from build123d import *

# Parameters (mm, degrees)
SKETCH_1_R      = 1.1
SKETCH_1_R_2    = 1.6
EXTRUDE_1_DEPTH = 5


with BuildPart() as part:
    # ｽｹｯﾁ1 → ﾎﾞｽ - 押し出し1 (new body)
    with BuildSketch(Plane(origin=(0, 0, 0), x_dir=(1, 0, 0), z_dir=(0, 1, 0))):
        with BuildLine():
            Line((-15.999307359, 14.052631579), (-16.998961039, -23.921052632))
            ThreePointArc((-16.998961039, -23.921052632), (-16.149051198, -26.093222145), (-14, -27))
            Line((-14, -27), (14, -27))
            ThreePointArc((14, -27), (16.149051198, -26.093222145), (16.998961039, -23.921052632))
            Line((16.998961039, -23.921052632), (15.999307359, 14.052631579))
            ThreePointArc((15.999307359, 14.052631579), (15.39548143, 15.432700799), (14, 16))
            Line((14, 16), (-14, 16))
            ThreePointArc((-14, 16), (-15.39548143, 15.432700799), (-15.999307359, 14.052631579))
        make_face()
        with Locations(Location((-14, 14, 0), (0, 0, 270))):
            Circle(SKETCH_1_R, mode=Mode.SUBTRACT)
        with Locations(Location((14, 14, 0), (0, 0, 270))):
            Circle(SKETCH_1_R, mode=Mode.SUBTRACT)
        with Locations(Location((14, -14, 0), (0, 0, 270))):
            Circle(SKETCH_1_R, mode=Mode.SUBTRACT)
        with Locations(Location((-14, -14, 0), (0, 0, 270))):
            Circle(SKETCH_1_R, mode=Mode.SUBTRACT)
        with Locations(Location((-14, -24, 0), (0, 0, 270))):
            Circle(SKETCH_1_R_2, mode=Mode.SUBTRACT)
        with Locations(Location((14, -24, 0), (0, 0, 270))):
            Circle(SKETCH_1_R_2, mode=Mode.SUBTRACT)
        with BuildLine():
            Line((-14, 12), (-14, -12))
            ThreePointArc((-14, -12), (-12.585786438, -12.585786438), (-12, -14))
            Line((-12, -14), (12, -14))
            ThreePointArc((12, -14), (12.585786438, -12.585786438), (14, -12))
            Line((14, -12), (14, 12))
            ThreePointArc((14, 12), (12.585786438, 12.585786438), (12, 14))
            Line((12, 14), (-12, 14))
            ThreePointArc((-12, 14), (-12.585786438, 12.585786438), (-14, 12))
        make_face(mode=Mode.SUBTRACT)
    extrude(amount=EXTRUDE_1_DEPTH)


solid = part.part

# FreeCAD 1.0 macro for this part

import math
import FreeCAD as App
import Part
import Sketcher

V = App.Vector

doc = App.newDocument("Part")
body = doc.addObject("PartDesign::Body", "Body")

sketch1 = doc.addObject("Sketcher::SketchObject", "Sketch")
body.addObject(sketch1)
sketch1.AttachmentSupport = (doc.XZ_Plane, [""])
sketch1.MapMode = "FlatFace"
sketch1.addGeometry([
    Part.LineSegment(V(-16, -14.1, 0), V(-17, 23.9, 0)),
    Part.ArcOfCircle(Part.Circle(V(-14, 24, 0), V(0, 0, 1), 3), math.radians(90), math.radians(182)),
    Part.LineSegment(V(-14, 27, 0), V(14, 27, 0)),
    Part.ArcOfCircle(Part.Circle(V(14, 24, 0), V(0, 0, 1), 3), math.radians(-2), math.radians(90)),
    Part.LineSegment(V(17, 23.9, 0), V(16, -14.1, 0)),
    Part.ArcOfCircle(Part.Circle(V(14, -14, 0), V(0, 0, 1), 2), math.radians(-90), math.radians(-2)),
    Part.LineSegment(V(14, -16, 0), V(-14, -16, 0)),
    Part.ArcOfCircle(Part.Circle(V(-14, -14, 0), V(0, 0, 1), 2), math.radians(-178), math.radians(-90)),
    Part.Circle(V(-14, 24, 0), V(0, 0, 1), 1.6),
    Part.Circle(V(-14, 14, 0), V(0, 0, 1), 1.1),
    Part.Circle(V(14, 24, 0), V(0, 0, 1), 1.6),
    Part.Circle(V(14, 14, 0), V(0, 0, 1), 1.1),
    Part.Circle(V(-14, -14, 0), V(0, 0, 1), 1.1),
    Part.LineSegment(V(-14, 12, 0), V(-14, -12, 0)),
    Part.ArcOfCircle(Part.Circle(V(-14, -14, 0), V(0, 0, 1), 2), math.radians(0), math.radians(90)),
    Part.LineSegment(V(-12, -14, 0), V(12, -14, 0)),
    Part.ArcOfCircle(Part.Circle(V(14, -14, 0), V(0, 0, 1), 2), math.radians(90), math.radians(180)),
    Part.LineSegment(V(14, -12, 0), V(14, 12, 0)),
    Part.ArcOfCircle(Part.Circle(V(14, 14, 0), V(0, 0, 1), 2), math.radians(-180), math.radians(-90)),
    Part.LineSegment(V(12, 14, 0), V(-12, 14, 0)),
    Part.ArcOfCircle(Part.Circle(V(-14, 14, 0), V(0, 0, 1), 2), math.radians(-90), math.radians(0)),
    Part.Circle(V(14, -14, 0), V(0, 0, 1), 1.1),
], False)
sketch1.addConstraint([
    Sketcher.Constraint("Tangent", 0, 2, 1, 2),
    Sketcher.Constraint("Tangent", 1, 1, 2, 1),
    Sketcher.Constraint("Tangent", 2, 2, 3, 2),
    Sketcher.Constraint("Tangent", 3, 1, 4, 1),
    Sketcher.Constraint("Tangent", 4, 2, 5, 2),
    Sketcher.Constraint("Tangent", 5, 1, 6, 1),
    Sketcher.Constraint("Tangent", 6, 2, 7, 2),
    Sketcher.Constraint("Tangent", 7, 1, 0, 1),
    Sketcher.Constraint("Coincident", 13, 2, 14, 2),
    Sketcher.Constraint("Coincident", 14, 1, 15, 1),
    Sketcher.Constraint("Coincident", 15, 2, 16, 2),
    Sketcher.Constraint("Coincident", 16, 1, 17, 1),
    Sketcher.Constraint("Coincident", 17, 2, 18, 2),
    Sketcher.Constraint("Coincident", 18, 1, 19, 1),
    Sketcher.Constraint("Coincident", 19, 2, 20, 2),
    Sketcher.Constraint("Coincident", 20, 1, 13, 1),
    Sketcher.Constraint("Horizontal", 2),
    Sketcher.Constraint("Horizontal", 6),
    Sketcher.Constraint("Vertical", 13),
    Sketcher.Constraint("Horizontal", 15),
    Sketcher.Constraint("Vertical", 17),
    Sketcher.Constraint("Horizontal", 19),
    Sketcher.Constraint("Coincident", 8, 3, 1, 3),
    Sketcher.Constraint("Coincident", 10, 3, 3, 3),
    Sketcher.Constraint("Coincident", 12, 3, 7, 3),
    Sketcher.Constraint("Coincident", 14, 3, 7, 3),
    Sketcher.Constraint("Coincident", 16, 3, 5, 3),
    Sketcher.Constraint("Coincident", 18, 3, 11, 3),
    Sketcher.Constraint("Coincident", 20, 3, 9, 3),
    Sketcher.Constraint("Coincident", 21, 3, 5, 3),
    Sketcher.Constraint("Equal", 1, 3),
    Sketcher.Constraint("Equal", 5, 7),
    Sketcher.Constraint("Equal", 8, 10),
    Sketcher.Constraint("Equal", 9, 11),
    Sketcher.Constraint("Equal", 11, 12),
    Sketcher.Constraint("Equal", 7, 14),
    Sketcher.Constraint("Equal", 14, 16),
    Sketcher.Constraint("Equal", 16, 18),
    Sketcher.Constraint("Equal", 18, 20),
    Sketcher.Constraint("Equal", 12, 21),
    Sketcher.Constraint("Symmetric", 5, 3, 9, 3, -1, 1),
    Sketcher.Constraint("Symmetric", 7, 3, 11, 3, -1, 1),
    Sketcher.Constraint("Symmetric", 0, 2, 3, 1, -2),
    Sketcher.Constraint("Horizontal", 21, 3, 14, 1),
    Sketcher.Constraint("Horizontal", 20, 3, 18, 1),
    Sketcher.Constraint("Vertical", 3, 3, 5, 3),
    Sketcher.Constraint("Vertical", 6, 2, 13, 2),
    Sketcher.Constraint("Vertical", 5, 1, 16, 1),
    Sketcher.Constraint("Equal", 19, 13),
    Sketcher.Constraint("Radius", 1, 3.0),
    Sketcher.Constraint("Radius", 5, 2.0),
    Sketcher.Constraint("Diameter", 8, 3.2),
    Sketcher.Constraint("Diameter", 9, 2.2),
    Sketcher.Constraint("DistanceX", 2, 1, 2, 2, 28.0),
    Sketcher.Constraint("DistanceY", -1, 1, 1, 3, 24.0),
])
pad1 = doc.addObject("PartDesign::Pad", "Pad")
body.addObject(pad1)
pad1.Profile = sketch1
pad1.Length = 5
pad1.Reversed = True

doc.recompute()
